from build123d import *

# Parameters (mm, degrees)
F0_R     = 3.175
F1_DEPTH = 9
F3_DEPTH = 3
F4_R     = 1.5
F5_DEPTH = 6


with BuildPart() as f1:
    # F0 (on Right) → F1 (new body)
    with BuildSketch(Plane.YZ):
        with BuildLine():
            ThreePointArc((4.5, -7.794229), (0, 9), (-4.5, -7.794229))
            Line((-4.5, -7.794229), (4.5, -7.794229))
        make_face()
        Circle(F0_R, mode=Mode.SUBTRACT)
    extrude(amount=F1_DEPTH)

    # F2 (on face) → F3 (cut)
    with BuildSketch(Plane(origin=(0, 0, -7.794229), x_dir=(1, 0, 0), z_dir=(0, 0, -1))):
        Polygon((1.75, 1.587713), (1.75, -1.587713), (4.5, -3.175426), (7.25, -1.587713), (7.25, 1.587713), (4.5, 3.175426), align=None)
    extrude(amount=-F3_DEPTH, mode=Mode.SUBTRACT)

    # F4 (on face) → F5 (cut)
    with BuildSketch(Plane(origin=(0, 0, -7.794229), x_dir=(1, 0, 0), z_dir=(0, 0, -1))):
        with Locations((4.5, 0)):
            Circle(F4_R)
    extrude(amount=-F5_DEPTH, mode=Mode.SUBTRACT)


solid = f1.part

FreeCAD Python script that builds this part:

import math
import FreeCAD as App
import Part
import Sketcher
Q = App.Units.Quantity

doc = App.newDocument("Part")
body = doc.addObject("PartDesign::Body", "Body")

# Sketch on YZ plane
sketch1 = doc.addObject("Sketcher::SketchObject", "Sketch")
body.addObject(sketch1)
sketch1.AttachmentSupport = (doc.YZ_Plane, [""])
sketch1.MapMode = "FlatFace"
sketch1.addGeometry([
    Part.ArcOfCircle(Part.Circle(App.Vector(0, 0, 0), App.Vector(0, 0, 1), 9), math.radians(-60.000001), math.radians(240.000001)),
    Part.LineSegment(App.Vector(-4.5, -7.794229, 0), App.Vector(4.5, -7.794229, 0)),
    Part.Circle(App.Vector(0, 0, 0), App.Vector(0, 0, 1), 3.175),
], False)
sketch1.addConstraint([
    Sketcher.Constraint("Coincident", 0, 1, 1, 2),
    Sketcher.Constraint("Coincident", 1, 1, 0, 2),
    Sketcher.Constraint("Horizontal", 1),
    Sketcher.Constraint("Coincident", 0, 3, -1, 1),
    Sketcher.Constraint("Coincident", 2, 3, -1, 1),
    Sketcher.Constraint("Radius", 0, Q("9 mm")),
    Sketcher.Constraint("Diameter", 2, Q("6.35 mm")),
    Sketcher.Constraint("DistanceX", 1, 1, 1, 2, Q("9 mm")),
])
pad1 = doc.addObject("PartDesign::Pad", "Pad")
body.addObject(pad1)
pad1.Profile = sketch1
pad1.Length = 9

# Sketch on XY plane
sketch2 = doc.addObject("Sketcher::SketchObject", "Sketch001")
body.addObject(sketch2)
sketch2.AttachmentSupport = (doc.XY_Plane, [""])
sketch2.MapMode = "FlatFace"
sketch2.AttachmentOffset = App.Placement(App.Vector(0, 0, -7.794229), App.Rotation())
sketch2.addGeometry([
    Part.LineSegment(App.Vector(1.75, -1.587713, 0), App.Vector(1.75, 1.587713, 0)),  # 0
    Part.LineSegment(App.Vector(1.75, 1.587713, 0), App.Vector(4.5, 3.175426, 0)),  # 1
    Part.LineSegment(App.Vector(4.5, 3.175426, 0), App.Vector(7.25, 1.587713, 0)),  # 2
    Part.LineSegment(App.Vector(7.25, 1.587713, 0), App.Vector(7.25, -1.587713, 0)),  # 3
    Part.LineSegment(App.Vector(7.25, -1.587713, 0), App.Vector(4.5, -3.175426, 0)),  # 4
    Part.LineSegment(App.Vector(4.5, -3.175426, 0), App.Vector(1.75, -1.587713, 0)),  # 5
], False)
sketch2.addConstraint([
    Sketcher.Constraint("Coincident", 0, 2, 1, 1),
    Sketcher.Constraint("Coincident", 1, 2, 2, 1),
    Sketcher.Constraint("Coincident", 2, 2, 3, 1),
    Sketcher.Constraint("Coincident", 3, 2, 4, 1),
    Sketcher.Constraint("Coincident", 4, 2, 5, 1),
    Sketcher.Constraint("Coincident", 5, 2, 0, 1),
    Sketcher.Constraint("Vertical", 0),
    Sketcher.Constraint("Vertical", 3),
    Sketcher.Constraint("Symmetric", 1, 2, 4, 2, -1),
    Sketcher.Constraint("Parallel", 1, 4),
    Sketcher.Constraint("Parallel", 2, 5),
    Sketcher.Constraint("Horizontal", 0, 2, 2, 2),
    Sketcher.Constraint("Horizontal", 3, 2, 5, 2),
    Sketcher.Constraint("Angle", 1, Q("29.999996 deg")),
    Sketcher.Constraint("DistanceX", -1, 1, 1, 2, Q("4.5 mm")),
    Sketcher.Constraint("DistanceX", 0, 2, 2, 2, Q("5.5 mm")),
    Sketcher.Constraint("DistanceY", 0, 1, 0, 2, Q("3.175426 mm")),
])
pocket1 = doc.addObject("PartDesign::Pocket", "Pocket")
body.addObject(pocket1)
pocket1.Profile = sketch2
pocket1.Length = 3
pocket1.Reversed = True

# Sketch on XY plane
sketch3 = doc.addObject("Sketcher::SketchObject", "Sketch002")
body.addObject(sketch3)
sketch3.AttachmentSupport = (doc.XY_Plane, [""])
sketch3.MapMode = "FlatFace"
sketch3.AttachmentOffset = App.Placement(App.Vector(0, 0, -7.794229), App.Rotation())
sketch3.addGeometry(Part.Circle(App.Vector(4.5, 0, 0), App.Vector(0, 0, 1), 1.5), False)
sketch3.addConstraint([
    Sketcher.Constraint("PointOnObject", 0, 3, -1),
    Sketcher.Constraint("Diameter", 0, Q("3 mm")),
    Sketcher.Constraint("DistanceX", -1, 1, 0, 3, Q("4.5 mm")),
])
pocket2 = doc.addObject("PartDesign::Pocket", "Pocket001")
body.addObject(pocket2)
pocket2.Profile = sketch3
pocket2.Length = 6
pocket2.Reversed = True

doc.recompute()
